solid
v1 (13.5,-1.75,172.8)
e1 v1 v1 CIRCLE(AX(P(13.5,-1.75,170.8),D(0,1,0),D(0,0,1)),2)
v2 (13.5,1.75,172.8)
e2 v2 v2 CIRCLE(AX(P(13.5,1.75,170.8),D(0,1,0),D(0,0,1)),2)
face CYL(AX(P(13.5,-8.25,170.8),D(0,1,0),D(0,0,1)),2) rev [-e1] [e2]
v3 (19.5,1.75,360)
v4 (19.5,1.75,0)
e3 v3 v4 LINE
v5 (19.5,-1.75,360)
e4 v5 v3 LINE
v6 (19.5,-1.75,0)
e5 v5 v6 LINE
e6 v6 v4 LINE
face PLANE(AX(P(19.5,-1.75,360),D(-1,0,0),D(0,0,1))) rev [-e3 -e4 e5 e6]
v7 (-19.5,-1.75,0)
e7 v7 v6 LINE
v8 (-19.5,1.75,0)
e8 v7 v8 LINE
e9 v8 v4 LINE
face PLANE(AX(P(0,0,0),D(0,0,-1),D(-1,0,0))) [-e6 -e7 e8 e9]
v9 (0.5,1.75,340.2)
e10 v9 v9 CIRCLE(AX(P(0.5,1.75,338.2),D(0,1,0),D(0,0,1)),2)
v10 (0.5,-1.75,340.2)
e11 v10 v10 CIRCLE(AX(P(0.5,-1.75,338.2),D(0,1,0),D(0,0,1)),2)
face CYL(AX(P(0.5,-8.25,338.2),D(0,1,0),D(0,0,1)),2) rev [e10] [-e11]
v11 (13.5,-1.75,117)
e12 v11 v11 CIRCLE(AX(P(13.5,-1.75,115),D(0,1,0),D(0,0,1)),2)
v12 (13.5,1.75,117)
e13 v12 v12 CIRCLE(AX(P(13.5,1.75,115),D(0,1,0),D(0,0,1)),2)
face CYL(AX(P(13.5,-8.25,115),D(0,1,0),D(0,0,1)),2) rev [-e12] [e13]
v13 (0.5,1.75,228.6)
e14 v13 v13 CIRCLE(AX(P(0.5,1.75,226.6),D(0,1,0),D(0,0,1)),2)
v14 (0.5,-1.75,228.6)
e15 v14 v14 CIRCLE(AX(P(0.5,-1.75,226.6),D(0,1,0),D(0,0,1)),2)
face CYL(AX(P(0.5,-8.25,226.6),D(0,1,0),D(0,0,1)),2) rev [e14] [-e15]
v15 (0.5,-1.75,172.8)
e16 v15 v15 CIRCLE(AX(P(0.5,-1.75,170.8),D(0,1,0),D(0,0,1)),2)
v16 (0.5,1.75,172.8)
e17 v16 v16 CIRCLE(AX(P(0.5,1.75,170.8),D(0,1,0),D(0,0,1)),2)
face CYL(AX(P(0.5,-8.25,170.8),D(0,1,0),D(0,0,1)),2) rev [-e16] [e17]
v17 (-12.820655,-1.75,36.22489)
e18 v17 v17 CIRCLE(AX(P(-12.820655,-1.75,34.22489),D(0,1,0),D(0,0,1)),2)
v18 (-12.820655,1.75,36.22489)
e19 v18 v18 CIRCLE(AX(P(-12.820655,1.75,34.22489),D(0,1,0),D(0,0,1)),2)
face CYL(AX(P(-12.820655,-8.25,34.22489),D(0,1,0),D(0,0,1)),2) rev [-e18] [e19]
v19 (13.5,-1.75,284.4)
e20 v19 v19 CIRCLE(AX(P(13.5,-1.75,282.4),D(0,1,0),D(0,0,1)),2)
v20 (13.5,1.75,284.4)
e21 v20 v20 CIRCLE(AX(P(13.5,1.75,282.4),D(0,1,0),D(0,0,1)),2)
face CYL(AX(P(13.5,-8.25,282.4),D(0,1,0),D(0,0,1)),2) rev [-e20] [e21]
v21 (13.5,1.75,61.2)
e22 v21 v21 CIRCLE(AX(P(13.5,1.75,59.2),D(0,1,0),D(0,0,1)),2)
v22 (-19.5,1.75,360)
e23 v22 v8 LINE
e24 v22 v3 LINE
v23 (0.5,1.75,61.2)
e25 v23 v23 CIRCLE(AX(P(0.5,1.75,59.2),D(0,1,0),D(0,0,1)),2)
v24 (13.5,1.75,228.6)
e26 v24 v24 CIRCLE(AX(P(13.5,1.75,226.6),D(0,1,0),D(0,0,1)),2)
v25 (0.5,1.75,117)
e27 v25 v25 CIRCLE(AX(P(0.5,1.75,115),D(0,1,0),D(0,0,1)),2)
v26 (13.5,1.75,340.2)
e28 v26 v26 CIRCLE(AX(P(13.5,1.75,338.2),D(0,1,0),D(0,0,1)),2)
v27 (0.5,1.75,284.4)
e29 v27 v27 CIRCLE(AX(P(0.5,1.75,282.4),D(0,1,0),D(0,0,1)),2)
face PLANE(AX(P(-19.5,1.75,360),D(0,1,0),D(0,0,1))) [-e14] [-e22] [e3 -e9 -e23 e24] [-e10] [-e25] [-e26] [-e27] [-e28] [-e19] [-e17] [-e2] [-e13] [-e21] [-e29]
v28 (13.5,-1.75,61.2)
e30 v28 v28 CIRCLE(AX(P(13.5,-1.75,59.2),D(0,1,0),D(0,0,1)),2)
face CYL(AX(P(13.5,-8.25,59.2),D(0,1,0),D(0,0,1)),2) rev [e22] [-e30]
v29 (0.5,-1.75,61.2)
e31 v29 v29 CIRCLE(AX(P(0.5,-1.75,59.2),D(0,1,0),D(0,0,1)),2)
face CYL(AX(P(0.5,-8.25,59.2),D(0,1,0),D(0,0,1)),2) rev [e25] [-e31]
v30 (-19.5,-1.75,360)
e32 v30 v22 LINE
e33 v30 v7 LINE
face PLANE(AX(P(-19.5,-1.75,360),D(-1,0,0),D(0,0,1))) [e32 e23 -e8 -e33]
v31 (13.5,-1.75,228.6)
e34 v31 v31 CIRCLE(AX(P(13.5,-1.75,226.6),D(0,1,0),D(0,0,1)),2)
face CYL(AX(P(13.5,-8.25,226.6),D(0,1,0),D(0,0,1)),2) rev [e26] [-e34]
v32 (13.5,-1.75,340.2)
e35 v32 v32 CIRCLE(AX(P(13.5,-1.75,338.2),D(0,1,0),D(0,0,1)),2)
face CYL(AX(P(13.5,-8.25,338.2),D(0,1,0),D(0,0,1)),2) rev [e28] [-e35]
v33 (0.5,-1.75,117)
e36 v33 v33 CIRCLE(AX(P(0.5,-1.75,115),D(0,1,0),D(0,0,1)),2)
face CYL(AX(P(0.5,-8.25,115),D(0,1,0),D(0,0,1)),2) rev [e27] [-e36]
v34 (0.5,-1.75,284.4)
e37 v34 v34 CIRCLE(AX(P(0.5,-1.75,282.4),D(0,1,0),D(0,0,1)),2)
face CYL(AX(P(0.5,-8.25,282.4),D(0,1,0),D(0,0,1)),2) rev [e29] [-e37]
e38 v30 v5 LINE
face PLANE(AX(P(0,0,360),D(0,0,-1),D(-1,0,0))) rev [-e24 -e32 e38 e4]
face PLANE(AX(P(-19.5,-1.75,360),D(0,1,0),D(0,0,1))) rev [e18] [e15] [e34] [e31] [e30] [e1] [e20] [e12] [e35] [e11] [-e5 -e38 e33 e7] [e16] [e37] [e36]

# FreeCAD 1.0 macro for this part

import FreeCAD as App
import Part
import Sketcher

V = App.Vector
Q = App.Units.Quantity


def add_polygon(sketch, points):
    """Adds a closed chain of lines whose ends are joined by coincident constraints."""
    first, n = sketch.GeometryCount, len(points)
    for a, b in zip(points, points[1:] + points[:1]):
        sketch.addGeometry(Part.LineSegment(App.Vector(*a, 0), App.Vector(*b, 0)), False)
    for i in range(n):
        sketch.addConstraint(Sketcher.Constraint("Coincident", first + i, 2, first + (i + 1) % n, 1))

doc = App.newDocument("Part")
params = doc.addObject("Spreadsheet::Sheet", "Params")
for row, (alias, value) in enumerate([
    ("sketch1_width", "39 mm"),
    ("sketch1_height", "3.5 mm"),
    ("pad1_length", "360 mm"),
    ("sketch2_diameter", "4 mm"),
    ("pocket1_length", "10 mm"),
    ("sketch3_diameter", "4 mm"),
    ("pocket2_length", "10 mm"),
    ("linearpattern_pitch", "55.8 mm"),
], start=1):
    params.set(f"A{row}", alias)
    params.set(f"B{row}", "=" + value)
    params.setAlias(f"B{row}", alias)

body = doc.addObject("PartDesign::Body", "Body")

# Sketch on XY plane
sketch1 = body.newObject("Sketcher::SketchObject", "Sketch")
sketch1.AttachmentSupport = (doc.getObject("XY_Plane"), [""])
sketch1.MapMode = "FlatFace"
add_polygon(sketch1, [(-19.5, 1.8), (-19.5, -1.8), (19.5, -1.8), (19.5, 1.8)])  # lines 0-3
sketch1.addConstraint([
    Sketcher.Constraint("Vertical", 0),
    Sketcher.Constraint("Horizontal", 1),
    Sketcher.Constraint("Vertical", 2),
    Sketcher.Constraint("Horizontal", 3),
    Sketcher.Constraint("Symmetric", 0, 2, 2, 2, -1, 1),
    Sketcher.Constraint("DistanceX", 1, 1, 1, 2, Q("39 mm")),
    Sketcher.Constraint("DistanceY", 0, 2, 0, 1, Q("3.5 mm")),
])
sketch1.setExpression("Constraints[9]", "Params.sketch1_width")
sketch1.setExpression("Constraints[10]", "Params.sketch1_height")
pad1 = body.newObject("PartDesign::Pad", "Pad")
pad1.Profile = sketch1
pad1.setExpression("Length", "Params.pad1_length")

# Sketch on XZ plane
sketch2 = body.newObject("Sketcher::SketchObject", "Sketch001")
sketch2.AttachmentSupport = (doc.getObject("XZ_Plane"), [""])
sketch2.MapMode = "FlatFace"
sketch2.AttachmentOffset = App.Placement(V(0, 0, -1.75), App.Rotation())
sketch2.addGeometry(Part.Circle(V(-12.8, 34.2, 0), V(0, 0, 1), 2), False)
sketch2.addConstraint([
    Sketcher.Constraint("Diameter", 0, Q("4 mm")),
    Sketcher.Constraint("DistanceY", -1, 1, 0, 3, Q("34.22489 mm")),
    Sketcher.Constraint("DistanceX", 0, 3, -1, 1, Q("12.820655 mm")),
])
sketch2.setExpression("Constraints[0]", "Params.sketch2_diameter")
pocket1 = body.newObject("PartDesign::Pocket", "Pocket")
pocket1.Profile = sketch2
pocket1.setExpression("Length", "Params.pocket1_length")
pocket1.Reversed = True

# Sketch on XZ plane
sketch3 = body.newObject("Sketcher::SketchObject", "Sketch002")
sketch3.AttachmentSupport = (doc.getObject("XZ_Plane"), [""])
sketch3.MapMode = "FlatFace"
sketch3.AttachmentOffset = App.Placement(V(0, 0, -1.75), App.Rotation())
sketch3.addGeometry([
    Part.Circle(V(0.5, 59.2, 0), V(0, 0, 1), 2),
    Part.Circle(V(13.5, 59.2, 0), V(0, 0, 1), 2),
], False)
sketch3.addConstraint([
    Sketcher.Constraint("Equal", 0, 1),
    Sketcher.Constraint("Horizontal", 0, 3, 1, 3),
    Sketcher.Constraint("Diameter", 0, Q("4 mm")),
    Sketcher.Constraint("DistanceX", 0, 3, 1, 3, Q("13 mm")),
    Sketcher.Constraint("DistanceX", -1, 1, 0, 3, Q("0.5 mm")),
    Sketcher.Constraint("DistanceY", -1, 1, 0, 3, Q("59.2 mm")),
])
sketch3.setExpression("Constraints[2]", "Params.sketch3_diameter")
pocket2 = body.newObject("PartDesign::Pocket", "Pocket001")
pocket2.Profile = sketch3
pocket2.setExpression("Length", "Params.pocket2_length")
pocket2.Reversed = True
doc.recompute()

linearpattern = body.newObject("PartDesign::LinearPattern", "LinearPattern")
linearpattern.Originals = [pocket2]
linearpattern.Direction = (doc.getObject("Z_Axis"), [""])
linearpattern.Mode = "offset"
linearpattern.setExpression("Offset", "Params.linearpattern_pitch")
linearpattern.Occurrences = 6
body.Tip = linearpattern

doc.recompute()
